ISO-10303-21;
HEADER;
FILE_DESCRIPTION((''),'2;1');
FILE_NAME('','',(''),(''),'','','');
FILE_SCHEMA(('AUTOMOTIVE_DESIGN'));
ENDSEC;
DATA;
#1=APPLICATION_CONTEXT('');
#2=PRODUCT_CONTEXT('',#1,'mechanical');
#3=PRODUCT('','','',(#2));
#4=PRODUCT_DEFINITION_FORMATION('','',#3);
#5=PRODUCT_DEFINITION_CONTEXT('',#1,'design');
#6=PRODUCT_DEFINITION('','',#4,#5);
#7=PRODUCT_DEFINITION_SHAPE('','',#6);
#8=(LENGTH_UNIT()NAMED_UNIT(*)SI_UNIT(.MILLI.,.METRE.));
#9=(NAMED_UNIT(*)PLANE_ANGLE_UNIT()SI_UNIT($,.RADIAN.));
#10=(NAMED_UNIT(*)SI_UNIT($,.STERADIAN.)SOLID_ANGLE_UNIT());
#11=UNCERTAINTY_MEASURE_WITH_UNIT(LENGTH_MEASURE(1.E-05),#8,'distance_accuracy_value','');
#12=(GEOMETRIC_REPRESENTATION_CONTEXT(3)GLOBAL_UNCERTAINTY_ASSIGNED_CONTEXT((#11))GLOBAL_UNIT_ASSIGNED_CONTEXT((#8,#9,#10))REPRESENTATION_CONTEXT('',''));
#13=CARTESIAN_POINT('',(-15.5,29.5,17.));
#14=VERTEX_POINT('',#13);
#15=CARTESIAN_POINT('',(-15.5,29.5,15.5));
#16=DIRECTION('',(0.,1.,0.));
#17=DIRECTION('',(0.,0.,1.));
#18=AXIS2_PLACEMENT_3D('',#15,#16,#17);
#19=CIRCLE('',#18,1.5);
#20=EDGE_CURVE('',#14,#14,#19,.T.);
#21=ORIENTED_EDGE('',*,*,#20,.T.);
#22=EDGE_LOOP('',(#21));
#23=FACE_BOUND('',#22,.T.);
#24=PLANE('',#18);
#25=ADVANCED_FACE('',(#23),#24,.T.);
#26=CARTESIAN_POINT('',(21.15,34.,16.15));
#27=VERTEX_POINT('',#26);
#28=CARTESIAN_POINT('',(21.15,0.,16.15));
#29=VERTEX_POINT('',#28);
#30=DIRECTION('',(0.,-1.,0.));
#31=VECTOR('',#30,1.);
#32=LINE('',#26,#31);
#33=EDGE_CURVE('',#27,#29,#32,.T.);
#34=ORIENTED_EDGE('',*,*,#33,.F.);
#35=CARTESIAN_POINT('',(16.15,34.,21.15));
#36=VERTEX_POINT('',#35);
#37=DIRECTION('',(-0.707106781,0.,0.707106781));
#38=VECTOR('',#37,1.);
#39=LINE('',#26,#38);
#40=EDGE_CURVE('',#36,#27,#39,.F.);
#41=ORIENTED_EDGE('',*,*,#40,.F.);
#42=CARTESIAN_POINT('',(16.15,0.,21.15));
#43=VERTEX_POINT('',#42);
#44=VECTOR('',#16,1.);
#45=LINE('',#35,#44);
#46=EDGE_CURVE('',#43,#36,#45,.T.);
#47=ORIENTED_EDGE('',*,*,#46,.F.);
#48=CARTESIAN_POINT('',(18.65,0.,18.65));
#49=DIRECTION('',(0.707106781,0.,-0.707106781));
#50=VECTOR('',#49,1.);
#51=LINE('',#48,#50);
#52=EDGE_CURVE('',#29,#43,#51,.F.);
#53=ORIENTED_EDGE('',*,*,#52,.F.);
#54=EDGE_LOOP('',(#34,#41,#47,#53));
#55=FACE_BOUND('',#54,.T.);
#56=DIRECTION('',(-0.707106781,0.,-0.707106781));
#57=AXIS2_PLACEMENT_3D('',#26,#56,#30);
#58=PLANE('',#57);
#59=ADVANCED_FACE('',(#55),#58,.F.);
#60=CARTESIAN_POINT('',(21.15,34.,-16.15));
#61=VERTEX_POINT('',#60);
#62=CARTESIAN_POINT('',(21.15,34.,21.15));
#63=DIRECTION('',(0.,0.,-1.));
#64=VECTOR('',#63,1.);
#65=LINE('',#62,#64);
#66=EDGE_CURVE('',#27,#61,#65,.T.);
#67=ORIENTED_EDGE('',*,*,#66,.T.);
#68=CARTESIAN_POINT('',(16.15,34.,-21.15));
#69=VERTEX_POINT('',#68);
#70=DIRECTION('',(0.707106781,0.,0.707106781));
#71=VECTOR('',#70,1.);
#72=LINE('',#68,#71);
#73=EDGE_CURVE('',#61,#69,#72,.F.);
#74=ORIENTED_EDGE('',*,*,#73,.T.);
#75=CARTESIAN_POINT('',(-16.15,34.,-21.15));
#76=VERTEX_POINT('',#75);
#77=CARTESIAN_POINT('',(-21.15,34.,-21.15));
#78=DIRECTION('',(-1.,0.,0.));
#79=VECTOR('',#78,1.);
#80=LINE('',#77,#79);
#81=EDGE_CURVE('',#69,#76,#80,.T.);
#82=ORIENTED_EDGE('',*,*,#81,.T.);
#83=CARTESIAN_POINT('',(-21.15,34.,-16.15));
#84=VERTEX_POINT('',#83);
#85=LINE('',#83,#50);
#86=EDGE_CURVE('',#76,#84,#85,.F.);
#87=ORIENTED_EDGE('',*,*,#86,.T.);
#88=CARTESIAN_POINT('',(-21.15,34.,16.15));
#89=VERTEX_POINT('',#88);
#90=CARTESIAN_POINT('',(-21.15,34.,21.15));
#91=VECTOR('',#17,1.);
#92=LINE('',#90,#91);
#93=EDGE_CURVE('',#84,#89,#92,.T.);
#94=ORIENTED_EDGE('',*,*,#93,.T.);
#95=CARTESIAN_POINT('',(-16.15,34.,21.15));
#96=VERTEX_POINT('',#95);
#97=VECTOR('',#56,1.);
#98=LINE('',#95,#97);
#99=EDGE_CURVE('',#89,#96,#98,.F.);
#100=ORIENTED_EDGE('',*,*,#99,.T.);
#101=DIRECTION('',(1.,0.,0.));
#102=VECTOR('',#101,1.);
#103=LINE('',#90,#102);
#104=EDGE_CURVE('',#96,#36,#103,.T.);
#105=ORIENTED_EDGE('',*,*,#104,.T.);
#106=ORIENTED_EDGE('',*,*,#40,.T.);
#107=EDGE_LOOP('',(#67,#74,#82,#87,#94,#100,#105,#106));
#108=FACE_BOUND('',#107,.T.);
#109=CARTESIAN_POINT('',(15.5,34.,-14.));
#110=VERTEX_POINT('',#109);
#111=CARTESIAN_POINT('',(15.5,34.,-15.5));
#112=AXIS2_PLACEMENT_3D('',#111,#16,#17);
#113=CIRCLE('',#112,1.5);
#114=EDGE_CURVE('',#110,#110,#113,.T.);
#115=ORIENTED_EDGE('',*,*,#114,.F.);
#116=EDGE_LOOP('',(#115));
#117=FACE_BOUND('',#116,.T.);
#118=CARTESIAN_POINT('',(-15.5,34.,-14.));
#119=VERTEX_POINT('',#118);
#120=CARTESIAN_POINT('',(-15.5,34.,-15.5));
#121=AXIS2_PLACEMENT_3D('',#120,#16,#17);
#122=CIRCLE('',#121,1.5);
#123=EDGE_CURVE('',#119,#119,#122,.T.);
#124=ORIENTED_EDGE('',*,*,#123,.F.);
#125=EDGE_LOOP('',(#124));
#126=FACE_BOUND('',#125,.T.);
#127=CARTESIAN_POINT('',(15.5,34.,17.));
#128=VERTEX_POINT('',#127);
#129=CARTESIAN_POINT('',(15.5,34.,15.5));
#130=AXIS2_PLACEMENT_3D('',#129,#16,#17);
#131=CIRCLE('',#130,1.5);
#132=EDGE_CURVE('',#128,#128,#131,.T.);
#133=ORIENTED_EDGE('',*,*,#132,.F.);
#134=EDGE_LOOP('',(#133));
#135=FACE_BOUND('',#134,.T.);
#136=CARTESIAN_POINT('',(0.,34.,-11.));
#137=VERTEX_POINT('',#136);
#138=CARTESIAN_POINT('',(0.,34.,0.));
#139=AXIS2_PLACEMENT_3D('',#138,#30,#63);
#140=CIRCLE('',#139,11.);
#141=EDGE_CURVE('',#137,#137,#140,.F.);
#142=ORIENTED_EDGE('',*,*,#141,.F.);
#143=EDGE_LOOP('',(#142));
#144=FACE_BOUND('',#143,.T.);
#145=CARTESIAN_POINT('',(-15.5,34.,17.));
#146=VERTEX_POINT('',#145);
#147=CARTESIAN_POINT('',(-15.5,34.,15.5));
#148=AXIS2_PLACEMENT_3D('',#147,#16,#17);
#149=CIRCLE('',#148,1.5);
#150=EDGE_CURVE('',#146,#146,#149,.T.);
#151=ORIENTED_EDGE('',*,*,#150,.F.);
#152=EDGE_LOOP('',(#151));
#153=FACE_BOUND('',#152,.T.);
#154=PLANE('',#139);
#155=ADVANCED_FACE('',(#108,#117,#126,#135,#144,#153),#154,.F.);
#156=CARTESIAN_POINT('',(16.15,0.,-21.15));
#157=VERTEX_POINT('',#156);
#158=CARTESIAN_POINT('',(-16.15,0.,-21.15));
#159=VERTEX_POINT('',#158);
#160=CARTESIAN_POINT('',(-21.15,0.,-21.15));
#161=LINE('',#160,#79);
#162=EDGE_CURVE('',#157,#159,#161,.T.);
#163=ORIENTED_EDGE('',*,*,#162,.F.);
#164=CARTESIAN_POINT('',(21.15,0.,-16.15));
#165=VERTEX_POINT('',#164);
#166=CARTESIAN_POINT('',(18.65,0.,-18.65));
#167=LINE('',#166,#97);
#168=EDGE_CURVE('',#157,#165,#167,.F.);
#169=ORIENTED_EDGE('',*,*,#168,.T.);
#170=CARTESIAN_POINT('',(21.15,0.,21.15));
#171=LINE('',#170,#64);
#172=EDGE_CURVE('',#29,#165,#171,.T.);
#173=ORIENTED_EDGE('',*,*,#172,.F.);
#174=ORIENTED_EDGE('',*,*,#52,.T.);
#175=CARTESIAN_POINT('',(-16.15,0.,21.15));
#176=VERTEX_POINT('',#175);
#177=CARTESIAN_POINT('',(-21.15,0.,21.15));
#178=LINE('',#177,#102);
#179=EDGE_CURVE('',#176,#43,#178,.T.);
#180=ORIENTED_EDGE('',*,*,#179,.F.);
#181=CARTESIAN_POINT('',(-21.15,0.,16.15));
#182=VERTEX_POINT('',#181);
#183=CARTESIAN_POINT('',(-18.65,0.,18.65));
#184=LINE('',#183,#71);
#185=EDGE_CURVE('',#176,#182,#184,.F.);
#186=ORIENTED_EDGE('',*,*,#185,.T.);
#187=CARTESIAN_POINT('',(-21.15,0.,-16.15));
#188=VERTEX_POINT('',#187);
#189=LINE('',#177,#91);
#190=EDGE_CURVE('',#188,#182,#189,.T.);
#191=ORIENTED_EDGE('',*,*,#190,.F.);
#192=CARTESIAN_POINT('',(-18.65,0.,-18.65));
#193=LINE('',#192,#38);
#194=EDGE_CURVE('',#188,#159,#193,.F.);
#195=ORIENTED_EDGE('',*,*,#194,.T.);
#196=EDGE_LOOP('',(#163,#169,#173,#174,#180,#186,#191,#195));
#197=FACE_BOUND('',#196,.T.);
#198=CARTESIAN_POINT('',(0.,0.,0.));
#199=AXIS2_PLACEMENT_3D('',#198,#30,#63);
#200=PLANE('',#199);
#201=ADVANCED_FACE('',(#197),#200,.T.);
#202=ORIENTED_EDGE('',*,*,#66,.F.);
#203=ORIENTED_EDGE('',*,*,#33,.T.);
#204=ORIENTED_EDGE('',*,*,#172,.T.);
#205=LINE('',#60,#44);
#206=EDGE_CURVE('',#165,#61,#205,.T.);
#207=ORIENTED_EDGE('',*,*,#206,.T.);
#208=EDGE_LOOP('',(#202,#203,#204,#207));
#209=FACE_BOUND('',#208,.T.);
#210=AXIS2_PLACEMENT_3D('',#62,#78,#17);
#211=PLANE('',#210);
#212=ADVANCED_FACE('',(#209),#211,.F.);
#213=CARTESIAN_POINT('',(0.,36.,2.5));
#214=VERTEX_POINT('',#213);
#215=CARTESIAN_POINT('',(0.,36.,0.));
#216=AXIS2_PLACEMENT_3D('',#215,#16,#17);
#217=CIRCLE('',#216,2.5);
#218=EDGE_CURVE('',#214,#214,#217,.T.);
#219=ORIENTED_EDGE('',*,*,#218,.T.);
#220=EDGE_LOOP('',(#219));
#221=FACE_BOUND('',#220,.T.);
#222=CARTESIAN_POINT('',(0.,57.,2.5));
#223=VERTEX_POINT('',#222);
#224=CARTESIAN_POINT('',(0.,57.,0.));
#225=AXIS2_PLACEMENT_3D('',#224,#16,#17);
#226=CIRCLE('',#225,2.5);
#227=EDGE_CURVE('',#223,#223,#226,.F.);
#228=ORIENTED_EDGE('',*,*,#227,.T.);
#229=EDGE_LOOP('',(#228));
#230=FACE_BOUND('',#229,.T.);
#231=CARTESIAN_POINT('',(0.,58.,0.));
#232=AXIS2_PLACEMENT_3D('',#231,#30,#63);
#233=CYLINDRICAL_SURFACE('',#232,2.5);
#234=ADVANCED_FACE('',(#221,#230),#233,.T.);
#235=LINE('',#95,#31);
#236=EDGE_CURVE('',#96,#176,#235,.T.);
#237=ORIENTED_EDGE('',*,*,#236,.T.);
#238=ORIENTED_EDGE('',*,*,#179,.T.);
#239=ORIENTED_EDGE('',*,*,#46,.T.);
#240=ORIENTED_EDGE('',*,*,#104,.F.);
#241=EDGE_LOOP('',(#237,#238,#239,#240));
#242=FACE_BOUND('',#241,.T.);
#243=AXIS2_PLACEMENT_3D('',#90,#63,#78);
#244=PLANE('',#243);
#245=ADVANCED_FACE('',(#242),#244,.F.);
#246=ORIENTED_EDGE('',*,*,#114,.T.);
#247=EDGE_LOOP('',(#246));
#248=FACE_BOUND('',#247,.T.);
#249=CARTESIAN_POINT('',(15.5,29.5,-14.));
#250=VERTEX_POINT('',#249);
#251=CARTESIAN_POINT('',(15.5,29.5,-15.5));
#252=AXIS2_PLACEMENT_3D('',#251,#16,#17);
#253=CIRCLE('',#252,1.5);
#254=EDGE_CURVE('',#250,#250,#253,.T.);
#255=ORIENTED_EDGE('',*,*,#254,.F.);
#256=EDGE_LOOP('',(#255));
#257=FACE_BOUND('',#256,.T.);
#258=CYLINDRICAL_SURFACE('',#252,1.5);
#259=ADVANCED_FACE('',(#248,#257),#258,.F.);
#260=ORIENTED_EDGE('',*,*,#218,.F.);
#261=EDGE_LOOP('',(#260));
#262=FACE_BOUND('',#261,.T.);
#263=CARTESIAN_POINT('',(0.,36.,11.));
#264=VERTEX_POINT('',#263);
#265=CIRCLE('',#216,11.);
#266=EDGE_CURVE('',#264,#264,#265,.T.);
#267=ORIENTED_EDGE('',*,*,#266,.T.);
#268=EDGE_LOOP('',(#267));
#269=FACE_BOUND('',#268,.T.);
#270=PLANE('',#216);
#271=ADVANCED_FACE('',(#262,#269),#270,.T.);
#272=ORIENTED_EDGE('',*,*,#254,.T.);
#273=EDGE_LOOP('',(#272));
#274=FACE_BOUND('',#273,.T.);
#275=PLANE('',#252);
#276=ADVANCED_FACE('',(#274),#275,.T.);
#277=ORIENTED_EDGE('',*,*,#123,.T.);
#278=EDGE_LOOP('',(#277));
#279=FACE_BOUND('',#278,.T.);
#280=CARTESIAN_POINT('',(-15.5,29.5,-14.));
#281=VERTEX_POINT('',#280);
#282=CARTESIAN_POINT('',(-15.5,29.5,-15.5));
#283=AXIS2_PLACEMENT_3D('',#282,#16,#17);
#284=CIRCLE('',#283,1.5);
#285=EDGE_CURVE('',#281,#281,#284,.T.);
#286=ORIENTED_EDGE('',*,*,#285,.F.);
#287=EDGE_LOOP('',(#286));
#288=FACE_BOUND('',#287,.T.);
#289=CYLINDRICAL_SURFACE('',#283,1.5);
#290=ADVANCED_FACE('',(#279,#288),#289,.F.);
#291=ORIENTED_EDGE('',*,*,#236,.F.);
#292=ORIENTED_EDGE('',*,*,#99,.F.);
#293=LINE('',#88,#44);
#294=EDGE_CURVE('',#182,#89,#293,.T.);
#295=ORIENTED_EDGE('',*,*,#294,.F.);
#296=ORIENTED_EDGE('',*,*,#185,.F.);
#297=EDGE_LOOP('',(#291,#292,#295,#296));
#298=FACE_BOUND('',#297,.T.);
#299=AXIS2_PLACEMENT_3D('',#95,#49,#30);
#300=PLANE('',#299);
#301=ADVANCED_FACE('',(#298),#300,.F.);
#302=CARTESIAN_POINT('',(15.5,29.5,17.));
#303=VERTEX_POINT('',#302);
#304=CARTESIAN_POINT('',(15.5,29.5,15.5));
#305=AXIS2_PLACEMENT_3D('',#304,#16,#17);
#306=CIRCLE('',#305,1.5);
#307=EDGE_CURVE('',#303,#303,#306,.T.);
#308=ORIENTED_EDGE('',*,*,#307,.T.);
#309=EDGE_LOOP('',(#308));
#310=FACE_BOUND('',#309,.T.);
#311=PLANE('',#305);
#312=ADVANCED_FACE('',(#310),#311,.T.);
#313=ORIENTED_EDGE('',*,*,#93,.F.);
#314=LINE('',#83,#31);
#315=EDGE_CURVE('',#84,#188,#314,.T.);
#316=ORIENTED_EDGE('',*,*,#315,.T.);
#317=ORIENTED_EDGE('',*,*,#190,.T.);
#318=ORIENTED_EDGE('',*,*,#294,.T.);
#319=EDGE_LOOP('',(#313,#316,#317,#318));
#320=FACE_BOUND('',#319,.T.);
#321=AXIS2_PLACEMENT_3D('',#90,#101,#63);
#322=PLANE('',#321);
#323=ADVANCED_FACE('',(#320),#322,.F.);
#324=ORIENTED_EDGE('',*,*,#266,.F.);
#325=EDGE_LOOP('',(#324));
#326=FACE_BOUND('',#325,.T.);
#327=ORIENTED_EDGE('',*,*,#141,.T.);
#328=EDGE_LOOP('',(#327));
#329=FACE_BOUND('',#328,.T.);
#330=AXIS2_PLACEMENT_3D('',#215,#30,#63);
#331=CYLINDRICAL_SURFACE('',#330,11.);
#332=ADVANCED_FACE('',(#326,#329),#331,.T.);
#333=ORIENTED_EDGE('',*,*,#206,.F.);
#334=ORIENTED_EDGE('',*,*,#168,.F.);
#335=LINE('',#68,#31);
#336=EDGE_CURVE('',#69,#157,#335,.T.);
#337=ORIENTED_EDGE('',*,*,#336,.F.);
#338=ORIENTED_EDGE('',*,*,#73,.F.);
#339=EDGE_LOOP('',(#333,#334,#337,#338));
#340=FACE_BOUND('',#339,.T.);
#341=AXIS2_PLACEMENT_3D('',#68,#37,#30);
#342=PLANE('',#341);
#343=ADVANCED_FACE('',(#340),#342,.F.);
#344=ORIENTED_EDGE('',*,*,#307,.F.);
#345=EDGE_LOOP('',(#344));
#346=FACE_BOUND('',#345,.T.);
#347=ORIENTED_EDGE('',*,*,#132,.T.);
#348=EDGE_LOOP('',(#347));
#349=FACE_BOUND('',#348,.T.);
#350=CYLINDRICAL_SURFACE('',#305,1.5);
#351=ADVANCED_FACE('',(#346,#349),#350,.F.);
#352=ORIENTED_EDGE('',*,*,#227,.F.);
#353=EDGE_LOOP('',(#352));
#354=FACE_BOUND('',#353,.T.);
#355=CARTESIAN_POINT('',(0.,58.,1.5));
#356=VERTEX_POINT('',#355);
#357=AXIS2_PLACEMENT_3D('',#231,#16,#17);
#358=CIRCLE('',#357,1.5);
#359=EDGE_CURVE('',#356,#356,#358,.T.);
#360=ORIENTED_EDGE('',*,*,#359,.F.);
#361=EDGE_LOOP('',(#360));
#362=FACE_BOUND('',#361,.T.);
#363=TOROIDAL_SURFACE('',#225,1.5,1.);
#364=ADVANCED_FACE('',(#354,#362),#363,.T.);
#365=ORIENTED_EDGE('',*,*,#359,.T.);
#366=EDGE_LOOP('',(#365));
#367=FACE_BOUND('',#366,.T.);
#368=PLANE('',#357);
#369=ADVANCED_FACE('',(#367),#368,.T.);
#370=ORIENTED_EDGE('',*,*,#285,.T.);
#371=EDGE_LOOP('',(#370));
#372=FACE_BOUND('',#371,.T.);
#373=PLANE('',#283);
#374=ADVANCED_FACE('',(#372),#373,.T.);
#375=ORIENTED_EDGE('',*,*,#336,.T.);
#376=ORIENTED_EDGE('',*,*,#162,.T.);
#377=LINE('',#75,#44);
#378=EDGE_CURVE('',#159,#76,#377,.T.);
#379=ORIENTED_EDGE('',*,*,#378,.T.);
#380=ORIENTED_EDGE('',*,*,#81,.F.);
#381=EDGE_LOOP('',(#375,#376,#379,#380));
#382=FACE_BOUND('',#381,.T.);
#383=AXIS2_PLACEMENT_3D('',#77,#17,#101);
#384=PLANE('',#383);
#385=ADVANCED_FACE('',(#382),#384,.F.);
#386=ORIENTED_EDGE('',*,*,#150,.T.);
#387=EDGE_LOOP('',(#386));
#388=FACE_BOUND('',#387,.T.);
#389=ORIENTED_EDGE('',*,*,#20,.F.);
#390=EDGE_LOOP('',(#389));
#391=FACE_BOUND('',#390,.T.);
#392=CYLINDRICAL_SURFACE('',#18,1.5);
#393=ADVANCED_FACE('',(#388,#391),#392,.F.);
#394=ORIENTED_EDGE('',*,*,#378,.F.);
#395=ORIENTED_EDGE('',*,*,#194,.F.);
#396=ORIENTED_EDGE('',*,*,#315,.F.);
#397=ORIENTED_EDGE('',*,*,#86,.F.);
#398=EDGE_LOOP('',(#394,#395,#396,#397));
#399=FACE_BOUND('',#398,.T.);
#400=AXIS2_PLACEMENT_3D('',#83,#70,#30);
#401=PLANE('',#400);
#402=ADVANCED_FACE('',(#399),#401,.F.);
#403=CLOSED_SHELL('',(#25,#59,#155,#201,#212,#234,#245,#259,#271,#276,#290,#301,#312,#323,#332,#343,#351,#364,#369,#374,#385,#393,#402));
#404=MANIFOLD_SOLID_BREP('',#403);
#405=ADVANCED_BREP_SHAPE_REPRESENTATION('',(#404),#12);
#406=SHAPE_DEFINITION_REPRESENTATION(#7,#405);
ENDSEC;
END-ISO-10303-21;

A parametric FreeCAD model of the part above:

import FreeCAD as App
import Part
import Sketcher
Q = App.Units.Quantity


def edges_at(feature, points):
    """Names of the edges that pass closest to the given points."""
    edges = feature.Shape.Edges
    near = lambda p: min(range(len(edges)), key=lambda i: edges[i].distToShape(Part.Vertex(*p))[0])
    return sorted({f"Edge{near(p) + 1}" for p in points})

doc = App.newDocument("Part")
body = doc.addObject("PartDesign::Body", "Body")

sketch1 = body.newObject("Sketcher::SketchObject", "Sketch")
sketch1.AttachmentSupport = (doc.getObject("XZ_Plane"), [""])
sketch1.MapMode = "FlatFace"
sketch1.addGeometry(Part.LineSegment(App.Vector(-21, -21, 0), App.Vector(-21, 21, 0)), False)
sketch1.addGeometry(Part.LineSegment(App.Vector(-21, 21, 0), App.Vector(21, 21, 0)), False)
sketch1.addGeometry(Part.LineSegment(App.Vector(21, 21, 0), App.Vector(21, -21, 0)), False)
sketch1.addGeometry(Part.LineSegment(App.Vector(21, -21, 0), App.Vector(-21, -21, 0)), False)
sketch1.addConstraint(Sketcher.Constraint("Coincident", 0, 2, 1, 1))
sketch1.addConstraint(Sketcher.Constraint("Coincident", 1, 2, 2, 1))
sketch1.addConstraint(Sketcher.Constraint("Coincident", 2, 2, 3, 1))
sketch1.addConstraint(Sketcher.Constraint("Coincident", 3, 2, 0, 1))
sketch1.addConstraint(Sketcher.Constraint("Vertical", 0))
sketch1.addConstraint(Sketcher.Constraint("Horizontal", 1))
sketch1.addConstraint(Sketcher.Constraint("Vertical", 2))
sketch1.addConstraint(Sketcher.Constraint("Horizontal", 3))
sketch1.addConstraint(Sketcher.Constraint("Symmetric", 0, 2, 2, 2, -1, 1))
sketch1.addConstraint(Sketcher.Constraint("Equal", 3, 0))
sketch1.addConstraint(Sketcher.Constraint("DistanceX", 1, 1, 1, 2, Q("42.3 mm")))
pad1 = body.newObject("PartDesign::Pad", "Pad")
pad1.Profile = sketch1
pad1.Length = 34
pad1.Reversed = True

sketch2 = body.newObject("Sketcher::SketchObject", "Sketch001")
sketch2.AttachmentSupport = (doc.getObject("XZ_Plane"), [""])
sketch2.MapMode = "FlatFace"
sketch2.AttachmentOffset = App.Placement(App.Vector(0, 0, -34), App.Rotation())
sketch2.addGeometry(Part.Circle(App.Vector(0, 0, 0), App.Vector(0, 0, 1), 2.5), False)
sketch2.addConstraint(Sketcher.Constraint("Coincident", 0, 3, -1, 1))
sketch2.addConstraint(Sketcher.Constraint("Diameter", 0, Q("5 mm")))
pad2 = body.newObject("PartDesign::Pad", "Pad001")
pad2.Profile = sketch2
pad2.Length = 24
pad2.Reversed = True

sketch3 = body.newObject("Sketcher::SketchObject", "Sketch002")
sketch3.AttachmentSupport = (doc.getObject("XZ_Plane"), [""])
sketch3.MapMode = "FlatFace"
sketch3.AttachmentOffset = App.Placement(App.Vector(0, 0, -34), App.Rotation())
sketch3.addGeometry(Part.Circle(App.Vector(0, 0, 0), App.Vector(0, 0, 1), 11), False)
sketch3.addConstraint(Sketcher.Constraint("Coincident", 0, 3, -1, 1))
sketch3.addConstraint(Sketcher.Constraint("Diameter", 0, Q("22 mm")))
pad3 = body.newObject("PartDesign::Pad", "Pad002")
pad3.Profile = sketch3
pad3.Length = 2
pad3.Reversed = True

sketch4 = body.newObject("Sketcher::SketchObject", "Sketch003")
sketch4.AttachmentSupport = (doc.getObject("XZ_Plane"), [""])
sketch4.MapMode = "FlatFace"
sketch4.AttachmentOffset = App.Placement(App.Vector(0, 0, -34), App.Rotation())
sketch4.addGeometry(Part.Circle(App.Vector(-15.5, -15.5, 0), App.Vector(0, 0, 1), 1.5), False)
sketch4.addGeometry(Part.Circle(App.Vector(15.5, -15.5, 0), App.Vector(0, 0, 1), 1.5), False)
sketch4.addGeometry(Part.Circle(App.Vector(15.5, 15.5, 0), App.Vector(0, 0, 1), 1.5), False)
sketch4.addGeometry(Part.Circle(App.Vector(-15.5, 15.5, 0), App.Vector(0, 0, 1), 1.5), False)
sketch4.addConstraint(Sketcher.Constraint("Equal", 0, 1))
sketch4.addConstraint(Sketcher.Constraint("Equal", 1, 2))
sketch4.addConstraint(Sketcher.Constraint("Equal", 2, 3))
sketch4.addConstraint(Sketcher.Constraint("Symmetric", 0, 3, 2, 3, -1, 1))
sketch4.addConstraint(Sketcher.Constraint("Symmetric", 1, 3, 3, 3, -1, 1))
sketch4.addConstraint(Sketcher.Constraint("Symmetric", 0, 3, 1, 3, -2))
sketch4.addConstraint(Sketcher.Constraint("Diameter", 0, Q("3 mm")))
sketch4.addConstraint(Sketcher.Constraint("DistanceX", 0, 3, 1, 3, Q("31 mm")))
sketch4.addConstraint(Sketcher.Constraint("DistanceY", 1, 3, 2, 3, Q("31 mm")))
pocket1 = body.newObject("PartDesign::Pocket", "Pocket")
pocket1.Profile = sketch4
pocket1.Length = 4.5
pocket1.Reversed = True
doc.recompute()

chamfer = body.newObject("PartDesign::Chamfer", "Chamfer")
chamfer.Base = (pocket1, edges_at(pocket1, [
    (21.15, 17, 21.15),
    (-21.15, 17, 21.15),
    (-21.15, 17, -21.15),
    (21.15, 17, -21.15),
]))
chamfer.Size = 5
doc.recompute()

fillet = body.newObject("PartDesign::Fillet", "Fillet")
fillet.Base = (chamfer, edges_at(chamfer, [(0, 58, 2.5)]))
fillet.Radius = 1

doc.recompute()
